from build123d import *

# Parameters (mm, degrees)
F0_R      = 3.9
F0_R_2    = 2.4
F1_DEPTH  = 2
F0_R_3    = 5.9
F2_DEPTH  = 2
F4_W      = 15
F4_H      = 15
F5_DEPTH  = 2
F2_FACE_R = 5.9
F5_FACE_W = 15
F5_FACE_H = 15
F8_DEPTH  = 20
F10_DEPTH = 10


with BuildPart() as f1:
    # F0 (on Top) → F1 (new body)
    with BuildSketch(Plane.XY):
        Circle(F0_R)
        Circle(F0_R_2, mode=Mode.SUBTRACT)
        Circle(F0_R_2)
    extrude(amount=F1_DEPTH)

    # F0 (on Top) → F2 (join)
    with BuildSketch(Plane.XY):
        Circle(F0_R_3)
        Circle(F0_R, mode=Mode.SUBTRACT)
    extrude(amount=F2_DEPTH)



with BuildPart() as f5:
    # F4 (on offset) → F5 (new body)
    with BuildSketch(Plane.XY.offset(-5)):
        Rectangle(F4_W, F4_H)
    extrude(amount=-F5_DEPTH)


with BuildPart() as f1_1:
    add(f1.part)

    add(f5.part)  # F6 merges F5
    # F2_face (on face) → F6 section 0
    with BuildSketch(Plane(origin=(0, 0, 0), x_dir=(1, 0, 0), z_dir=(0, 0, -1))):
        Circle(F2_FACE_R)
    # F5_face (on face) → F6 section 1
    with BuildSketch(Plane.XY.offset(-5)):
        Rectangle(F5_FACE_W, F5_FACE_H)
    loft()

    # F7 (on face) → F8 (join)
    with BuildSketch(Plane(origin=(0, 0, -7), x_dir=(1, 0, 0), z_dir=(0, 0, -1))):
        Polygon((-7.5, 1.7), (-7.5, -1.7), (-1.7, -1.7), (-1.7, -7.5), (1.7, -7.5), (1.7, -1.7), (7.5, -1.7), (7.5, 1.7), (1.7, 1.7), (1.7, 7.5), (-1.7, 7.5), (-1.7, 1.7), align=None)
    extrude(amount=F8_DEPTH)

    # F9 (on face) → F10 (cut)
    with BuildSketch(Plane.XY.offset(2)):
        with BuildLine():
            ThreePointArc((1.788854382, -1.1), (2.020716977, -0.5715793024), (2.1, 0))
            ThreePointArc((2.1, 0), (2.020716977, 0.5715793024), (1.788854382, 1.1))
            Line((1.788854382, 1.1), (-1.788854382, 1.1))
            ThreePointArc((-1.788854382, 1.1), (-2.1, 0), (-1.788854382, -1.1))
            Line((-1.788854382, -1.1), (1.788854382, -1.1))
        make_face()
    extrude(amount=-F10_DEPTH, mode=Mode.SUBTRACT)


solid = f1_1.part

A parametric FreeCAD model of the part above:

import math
import FreeCAD as App
import Part
import Sketcher
from FreeCAD import Vector
Q = App.Units.Quantity


def add_polygon(sketch, points):
    """Adds a closed chain of lines whose ends are joined by coincident constraints."""
    first, n = sketch.GeometryCount, len(points)
    for a, b in zip(points, points[1:] + points[:1]):
        sketch.addGeometry(Part.LineSegment(App.Vector(*a, 0), App.Vector(*b, 0)), False)
    for i in range(n):
        sketch.addConstraint(Sketcher.Constraint("Coincident", first + i, 2, first + (i + 1) % n, 1))

doc = App.newDocument("Part")
body = doc.addObject("PartDesign::Body", "Body")

# Sketch on XY plane
sketch1 = body.newObject("Sketcher::SketchObject", "Sketch")
sketch1.AttachmentSupport = (doc.getObject("XY_Plane"), [""])
sketch1.MapMode = "FlatFace"
sketch1.addGeometry(Part.Circle(Vector(0, 0, 0), Vector(0, 0, 1), 3.9), False)
sketch1.addConstraint([
    Sketcher.Constraint("Coincident", 0, 3, -1, 1),
    Sketcher.Constraint("Diameter", 0, Q("7.8 mm")),
])
pad1 = body.newObject("PartDesign::Pad", "Pad")
pad1.Profile = sketch1
pad1.Length = 2

# Sketch on XY plane
sketch2 = body.newObject("Sketcher::SketchObject", "Sketch001")
sketch2.AttachmentSupport = (doc.getObject("XY_Plane"), [""])
sketch2.MapMode = "FlatFace"
sketch2.addGeometry([
    Part.Circle(Vector(0, 0, 0), Vector(0, 0, 1), 5.9),
    Part.Circle(Vector(0, 0, 0), Vector(0, 0, 1), 3.9),
], False)
sketch2.addConstraint([
    Sketcher.Constraint("Coincident", 0, 3, -1, 1),
    Sketcher.Constraint("Coincident", 1, 3, -1, 1),
    Sketcher.Constraint("Diameter", 0, Q("11.8 mm")),
    Sketcher.Constraint("Diameter", 1, Q("7.8 mm")),
])
pad2 = body.newObject("PartDesign::Pad", "Pad001")
pad2.Profile = sketch2
pad2.Length = 2
body2 = doc.addObject("PartDesign::Body", "Body001")

# Sketch on XY plane
sketch3 = body2.newObject("Sketcher::SketchObject", "Sketch002")
sketch3.AttachmentSupport = (doc.getObject("XY_Plane001"), [""])
sketch3.MapMode = "FlatFace"
sketch3.AttachmentOffset = App.Placement(Vector(0, 0, -5), App.Rotation())
add_polygon(sketch3, [(-7.5, 7.5), (-7.5, -7.5), (7.5, -7.5), (7.5, 7.5)])  # lines 0-3
sketch3.addConstraint([
    Sketcher.Constraint("Vertical", 0),
    Sketcher.Constraint("Horizontal", 1),
    Sketcher.Constraint("Vertical", 2),
    Sketcher.Constraint("Horizontal", 3),
    Sketcher.Constraint("Symmetric", 0, 2, 2, 2, -1, 1),
    Sketcher.Constraint("Equal", 3, 0),
    Sketcher.Constraint("DistanceX", 1, 1, 1, 2, Q("15 mm")),
])
pad3 = body2.newObject("PartDesign::Pad", "Pad002")
pad3.Profile = sketch3
pad3.Length = 2
pad3.Reversed = True
body.AllowCompound = True
doc.recompute()

boolean = body.newObject("PartDesign::Boolean", "Boolean")
boolean.Type = "Fuse"
boolean.addObjects([body2])

# Sketch on XY plane
sketch4 = body.newObject("Sketcher::SketchObject", "Sketch003")
sketch4.AttachmentSupport = (doc.getObject("XY_Plane"), [""])
sketch4.MapMode = "FlatFace"
sketch4.addGeometry(Part.Circle(Vector(0, 0, 0), Vector(0, 0, 1), 5.9), False)
sketch4.addConstraint([
    Sketcher.Constraint("Coincident", 0, 3, -1, 1),
    Sketcher.Constraint("Diameter", 0, Q("11.8 mm")),
])

# Sketch on XY plane
sketch5 = body.newObject("Sketcher::SketchObject", "Sketch004")
sketch5.AttachmentSupport = (doc.getObject("XY_Plane"), [""])
sketch5.MapMode = "FlatFace"
sketch5.AttachmentOffset = App.Placement(Vector(0, 0, -5), App.Rotation())
add_polygon(sketch5, [(-7.5, 7.5), (-7.5, -7.5), (7.5, -7.5), (7.5, 7.5)])  # lines 0-3
sketch5.addConstraint([
    Sketcher.Constraint("Vertical", 0),
    Sketcher.Constraint("Horizontal", 1),
    Sketcher.Constraint("Vertical", 2),
    Sketcher.Constraint("Horizontal", 3),
    Sketcher.Constraint("Symmetric", 0, 2, 2, 2, -1, 1),
    Sketcher.Constraint("Equal", 3, 0),
    Sketcher.Constraint("DistanceX", 1, 1, 1, 2, Q("15 mm")),
])

additiveloft = body.newObject("PartDesign::AdditiveLoft", "AdditiveLoft")
additiveloft.Profile = sketch4
additiveloft.Sections = [sketch5]

# Sketch on XY plane
sketch6 = body.newObject("Sketcher::SketchObject", "Sketch005")
sketch6.AttachmentSupport = (doc.getObject("XY_Plane"), [""])
sketch6.MapMode = "FlatFace"
sketch6.AttachmentOffset = App.Placement(Vector(0, 0, -7), App.Rotation())
add_polygon(sketch6, [(-7.5, -1.7), (-7.5, 1.7), (-1.7, 1.7), (-1.7, 7.5), (1.7, 7.5), (1.7, 1.7), (7.5, 1.7), (7.5, -1.7), (1.7, -1.7), (1.7, -7.5), (-1.7, -7.5), (-1.7, -1.7)])  # lines 0-11
sketch6.addConstraint([
    Sketcher.Constraint("Vertical", 0),
    Sketcher.Constraint("Horizontal", 1),
    Sketcher.Constraint("Vertical", 2),
    Sketcher.Constraint("Horizontal", 3),
    Sketcher.Constraint("Vertical", 4),
    Sketcher.Constraint("Horizontal", 5),
    Sketcher.Constraint("Vertical", 6),
    Sketcher.Constraint("Horizontal", 7),
    Sketcher.Constraint("Vertical", 8),
    Sketcher.Constraint("Horizontal", 9),
    Sketcher.Constraint("Vertical", 10),
    Sketcher.Constraint("Horizontal", 11),
    Sketcher.Constraint("Symmetric", 0, 2, 6, 2, -1, 1),
    Sketcher.Constraint("Symmetric", 2, 2, 8, 2, -1, 1),
    Sketcher.Constraint("Symmetric", 4, 2, 10, 2, -1, 1),
    Sketcher.Constraint("Symmetric", 1, 2, 4, 2, -2),
    Sketcher.Constraint("Equal", 9, 0),
    Sketcher.Constraint("Equal", 11, 2),
    Sketcher.Constraint("DistanceX", 1, 1, 1, 2, Q("5.8 mm")),
    Sketcher.Constraint("DistanceX", 3, 1, 3, 2, Q("3.4 mm")),
])
pad4 = body.newObject("PartDesign::Pad", "Pad003")
pad4.Profile = sketch6
pad4.Length = 20
pad4.Reversed = True

# Sketch on XY plane
sketch7 = body.newObject("Sketcher::SketchObject", "Sketch006")
sketch7.AttachmentSupport = (doc.getObject("XY_Plane"), [""])
sketch7.MapMode = "FlatFace"
sketch7.AttachmentOffset = App.Placement(Vector(0, 0, 2), App.Rotation())
sketch7.addGeometry([
    Part.ArcOfCircle(Part.Circle(Vector(0, 0, 0), Vector(0, 0, 1), 2.1), math.radians(-31.588136), math.radians(0)),  # 0
    Part.ArcOfCircle(Part.Circle(Vector(0, 0, 0), Vector(0, 0, 1), 2.1), math.radians(0), math.radians(31.588136)),  # 1
    Part.LineSegment(Vector(1.788854, 1.1, 0), Vector(-1.788854, 1.1, 0)),  # 2
    Part.ArcOfCircle(Part.Circle(Vector(0, 0, 0), Vector(0, 0, 1), 2.1), math.radians(148.411864), math.radians(211.588136)),  # 3
    Part.LineSegment(Vector(-1.788854, -1.1, 0), Vector(1.788854, -1.1, 0)),  # 4
], False)
sketch7.addConstraint([
    Sketcher.Constraint("Tangent", 0, 2, 1, 1),
    Sketcher.Constraint("Coincident", 1, 2, 2, 1),
    Sketcher.Constraint("Coincident", 2, 2, 3, 1),
    Sketcher.Constraint("Coincident", 3, 2, 4, 1),
    Sketcher.Constraint("Coincident", 4, 2, 0, 1),
    Sketcher.Constraint("Horizontal", 2),
    Sketcher.Constraint("Horizontal", 4),
    Sketcher.Constraint("Coincident", 0, 3, -1, 1),
    Sketcher.Constraint("Coincident", 3, 3, -1, 1),
    Sketcher.Constraint("Equal", 0, 1),
    Sketcher.Constraint("Equal", 1, 3),
    Sketcher.Constraint("PointOnObject", 0, 2, -1),
    Sketcher.Constraint("Vertical", 2, 2, 3, 2),
    Sketcher.Constraint("Radius", 0, Q("2.1 mm")),
    Sketcher.Constraint("DistanceY", -1, 1, 1, 2, Q("1.1 mm")),
])
pocket1 = body.newObject("PartDesign::Pocket", "Pocket")
pocket1.Profile = sketch7
pocket1.Length = 10

doc.recompute()
